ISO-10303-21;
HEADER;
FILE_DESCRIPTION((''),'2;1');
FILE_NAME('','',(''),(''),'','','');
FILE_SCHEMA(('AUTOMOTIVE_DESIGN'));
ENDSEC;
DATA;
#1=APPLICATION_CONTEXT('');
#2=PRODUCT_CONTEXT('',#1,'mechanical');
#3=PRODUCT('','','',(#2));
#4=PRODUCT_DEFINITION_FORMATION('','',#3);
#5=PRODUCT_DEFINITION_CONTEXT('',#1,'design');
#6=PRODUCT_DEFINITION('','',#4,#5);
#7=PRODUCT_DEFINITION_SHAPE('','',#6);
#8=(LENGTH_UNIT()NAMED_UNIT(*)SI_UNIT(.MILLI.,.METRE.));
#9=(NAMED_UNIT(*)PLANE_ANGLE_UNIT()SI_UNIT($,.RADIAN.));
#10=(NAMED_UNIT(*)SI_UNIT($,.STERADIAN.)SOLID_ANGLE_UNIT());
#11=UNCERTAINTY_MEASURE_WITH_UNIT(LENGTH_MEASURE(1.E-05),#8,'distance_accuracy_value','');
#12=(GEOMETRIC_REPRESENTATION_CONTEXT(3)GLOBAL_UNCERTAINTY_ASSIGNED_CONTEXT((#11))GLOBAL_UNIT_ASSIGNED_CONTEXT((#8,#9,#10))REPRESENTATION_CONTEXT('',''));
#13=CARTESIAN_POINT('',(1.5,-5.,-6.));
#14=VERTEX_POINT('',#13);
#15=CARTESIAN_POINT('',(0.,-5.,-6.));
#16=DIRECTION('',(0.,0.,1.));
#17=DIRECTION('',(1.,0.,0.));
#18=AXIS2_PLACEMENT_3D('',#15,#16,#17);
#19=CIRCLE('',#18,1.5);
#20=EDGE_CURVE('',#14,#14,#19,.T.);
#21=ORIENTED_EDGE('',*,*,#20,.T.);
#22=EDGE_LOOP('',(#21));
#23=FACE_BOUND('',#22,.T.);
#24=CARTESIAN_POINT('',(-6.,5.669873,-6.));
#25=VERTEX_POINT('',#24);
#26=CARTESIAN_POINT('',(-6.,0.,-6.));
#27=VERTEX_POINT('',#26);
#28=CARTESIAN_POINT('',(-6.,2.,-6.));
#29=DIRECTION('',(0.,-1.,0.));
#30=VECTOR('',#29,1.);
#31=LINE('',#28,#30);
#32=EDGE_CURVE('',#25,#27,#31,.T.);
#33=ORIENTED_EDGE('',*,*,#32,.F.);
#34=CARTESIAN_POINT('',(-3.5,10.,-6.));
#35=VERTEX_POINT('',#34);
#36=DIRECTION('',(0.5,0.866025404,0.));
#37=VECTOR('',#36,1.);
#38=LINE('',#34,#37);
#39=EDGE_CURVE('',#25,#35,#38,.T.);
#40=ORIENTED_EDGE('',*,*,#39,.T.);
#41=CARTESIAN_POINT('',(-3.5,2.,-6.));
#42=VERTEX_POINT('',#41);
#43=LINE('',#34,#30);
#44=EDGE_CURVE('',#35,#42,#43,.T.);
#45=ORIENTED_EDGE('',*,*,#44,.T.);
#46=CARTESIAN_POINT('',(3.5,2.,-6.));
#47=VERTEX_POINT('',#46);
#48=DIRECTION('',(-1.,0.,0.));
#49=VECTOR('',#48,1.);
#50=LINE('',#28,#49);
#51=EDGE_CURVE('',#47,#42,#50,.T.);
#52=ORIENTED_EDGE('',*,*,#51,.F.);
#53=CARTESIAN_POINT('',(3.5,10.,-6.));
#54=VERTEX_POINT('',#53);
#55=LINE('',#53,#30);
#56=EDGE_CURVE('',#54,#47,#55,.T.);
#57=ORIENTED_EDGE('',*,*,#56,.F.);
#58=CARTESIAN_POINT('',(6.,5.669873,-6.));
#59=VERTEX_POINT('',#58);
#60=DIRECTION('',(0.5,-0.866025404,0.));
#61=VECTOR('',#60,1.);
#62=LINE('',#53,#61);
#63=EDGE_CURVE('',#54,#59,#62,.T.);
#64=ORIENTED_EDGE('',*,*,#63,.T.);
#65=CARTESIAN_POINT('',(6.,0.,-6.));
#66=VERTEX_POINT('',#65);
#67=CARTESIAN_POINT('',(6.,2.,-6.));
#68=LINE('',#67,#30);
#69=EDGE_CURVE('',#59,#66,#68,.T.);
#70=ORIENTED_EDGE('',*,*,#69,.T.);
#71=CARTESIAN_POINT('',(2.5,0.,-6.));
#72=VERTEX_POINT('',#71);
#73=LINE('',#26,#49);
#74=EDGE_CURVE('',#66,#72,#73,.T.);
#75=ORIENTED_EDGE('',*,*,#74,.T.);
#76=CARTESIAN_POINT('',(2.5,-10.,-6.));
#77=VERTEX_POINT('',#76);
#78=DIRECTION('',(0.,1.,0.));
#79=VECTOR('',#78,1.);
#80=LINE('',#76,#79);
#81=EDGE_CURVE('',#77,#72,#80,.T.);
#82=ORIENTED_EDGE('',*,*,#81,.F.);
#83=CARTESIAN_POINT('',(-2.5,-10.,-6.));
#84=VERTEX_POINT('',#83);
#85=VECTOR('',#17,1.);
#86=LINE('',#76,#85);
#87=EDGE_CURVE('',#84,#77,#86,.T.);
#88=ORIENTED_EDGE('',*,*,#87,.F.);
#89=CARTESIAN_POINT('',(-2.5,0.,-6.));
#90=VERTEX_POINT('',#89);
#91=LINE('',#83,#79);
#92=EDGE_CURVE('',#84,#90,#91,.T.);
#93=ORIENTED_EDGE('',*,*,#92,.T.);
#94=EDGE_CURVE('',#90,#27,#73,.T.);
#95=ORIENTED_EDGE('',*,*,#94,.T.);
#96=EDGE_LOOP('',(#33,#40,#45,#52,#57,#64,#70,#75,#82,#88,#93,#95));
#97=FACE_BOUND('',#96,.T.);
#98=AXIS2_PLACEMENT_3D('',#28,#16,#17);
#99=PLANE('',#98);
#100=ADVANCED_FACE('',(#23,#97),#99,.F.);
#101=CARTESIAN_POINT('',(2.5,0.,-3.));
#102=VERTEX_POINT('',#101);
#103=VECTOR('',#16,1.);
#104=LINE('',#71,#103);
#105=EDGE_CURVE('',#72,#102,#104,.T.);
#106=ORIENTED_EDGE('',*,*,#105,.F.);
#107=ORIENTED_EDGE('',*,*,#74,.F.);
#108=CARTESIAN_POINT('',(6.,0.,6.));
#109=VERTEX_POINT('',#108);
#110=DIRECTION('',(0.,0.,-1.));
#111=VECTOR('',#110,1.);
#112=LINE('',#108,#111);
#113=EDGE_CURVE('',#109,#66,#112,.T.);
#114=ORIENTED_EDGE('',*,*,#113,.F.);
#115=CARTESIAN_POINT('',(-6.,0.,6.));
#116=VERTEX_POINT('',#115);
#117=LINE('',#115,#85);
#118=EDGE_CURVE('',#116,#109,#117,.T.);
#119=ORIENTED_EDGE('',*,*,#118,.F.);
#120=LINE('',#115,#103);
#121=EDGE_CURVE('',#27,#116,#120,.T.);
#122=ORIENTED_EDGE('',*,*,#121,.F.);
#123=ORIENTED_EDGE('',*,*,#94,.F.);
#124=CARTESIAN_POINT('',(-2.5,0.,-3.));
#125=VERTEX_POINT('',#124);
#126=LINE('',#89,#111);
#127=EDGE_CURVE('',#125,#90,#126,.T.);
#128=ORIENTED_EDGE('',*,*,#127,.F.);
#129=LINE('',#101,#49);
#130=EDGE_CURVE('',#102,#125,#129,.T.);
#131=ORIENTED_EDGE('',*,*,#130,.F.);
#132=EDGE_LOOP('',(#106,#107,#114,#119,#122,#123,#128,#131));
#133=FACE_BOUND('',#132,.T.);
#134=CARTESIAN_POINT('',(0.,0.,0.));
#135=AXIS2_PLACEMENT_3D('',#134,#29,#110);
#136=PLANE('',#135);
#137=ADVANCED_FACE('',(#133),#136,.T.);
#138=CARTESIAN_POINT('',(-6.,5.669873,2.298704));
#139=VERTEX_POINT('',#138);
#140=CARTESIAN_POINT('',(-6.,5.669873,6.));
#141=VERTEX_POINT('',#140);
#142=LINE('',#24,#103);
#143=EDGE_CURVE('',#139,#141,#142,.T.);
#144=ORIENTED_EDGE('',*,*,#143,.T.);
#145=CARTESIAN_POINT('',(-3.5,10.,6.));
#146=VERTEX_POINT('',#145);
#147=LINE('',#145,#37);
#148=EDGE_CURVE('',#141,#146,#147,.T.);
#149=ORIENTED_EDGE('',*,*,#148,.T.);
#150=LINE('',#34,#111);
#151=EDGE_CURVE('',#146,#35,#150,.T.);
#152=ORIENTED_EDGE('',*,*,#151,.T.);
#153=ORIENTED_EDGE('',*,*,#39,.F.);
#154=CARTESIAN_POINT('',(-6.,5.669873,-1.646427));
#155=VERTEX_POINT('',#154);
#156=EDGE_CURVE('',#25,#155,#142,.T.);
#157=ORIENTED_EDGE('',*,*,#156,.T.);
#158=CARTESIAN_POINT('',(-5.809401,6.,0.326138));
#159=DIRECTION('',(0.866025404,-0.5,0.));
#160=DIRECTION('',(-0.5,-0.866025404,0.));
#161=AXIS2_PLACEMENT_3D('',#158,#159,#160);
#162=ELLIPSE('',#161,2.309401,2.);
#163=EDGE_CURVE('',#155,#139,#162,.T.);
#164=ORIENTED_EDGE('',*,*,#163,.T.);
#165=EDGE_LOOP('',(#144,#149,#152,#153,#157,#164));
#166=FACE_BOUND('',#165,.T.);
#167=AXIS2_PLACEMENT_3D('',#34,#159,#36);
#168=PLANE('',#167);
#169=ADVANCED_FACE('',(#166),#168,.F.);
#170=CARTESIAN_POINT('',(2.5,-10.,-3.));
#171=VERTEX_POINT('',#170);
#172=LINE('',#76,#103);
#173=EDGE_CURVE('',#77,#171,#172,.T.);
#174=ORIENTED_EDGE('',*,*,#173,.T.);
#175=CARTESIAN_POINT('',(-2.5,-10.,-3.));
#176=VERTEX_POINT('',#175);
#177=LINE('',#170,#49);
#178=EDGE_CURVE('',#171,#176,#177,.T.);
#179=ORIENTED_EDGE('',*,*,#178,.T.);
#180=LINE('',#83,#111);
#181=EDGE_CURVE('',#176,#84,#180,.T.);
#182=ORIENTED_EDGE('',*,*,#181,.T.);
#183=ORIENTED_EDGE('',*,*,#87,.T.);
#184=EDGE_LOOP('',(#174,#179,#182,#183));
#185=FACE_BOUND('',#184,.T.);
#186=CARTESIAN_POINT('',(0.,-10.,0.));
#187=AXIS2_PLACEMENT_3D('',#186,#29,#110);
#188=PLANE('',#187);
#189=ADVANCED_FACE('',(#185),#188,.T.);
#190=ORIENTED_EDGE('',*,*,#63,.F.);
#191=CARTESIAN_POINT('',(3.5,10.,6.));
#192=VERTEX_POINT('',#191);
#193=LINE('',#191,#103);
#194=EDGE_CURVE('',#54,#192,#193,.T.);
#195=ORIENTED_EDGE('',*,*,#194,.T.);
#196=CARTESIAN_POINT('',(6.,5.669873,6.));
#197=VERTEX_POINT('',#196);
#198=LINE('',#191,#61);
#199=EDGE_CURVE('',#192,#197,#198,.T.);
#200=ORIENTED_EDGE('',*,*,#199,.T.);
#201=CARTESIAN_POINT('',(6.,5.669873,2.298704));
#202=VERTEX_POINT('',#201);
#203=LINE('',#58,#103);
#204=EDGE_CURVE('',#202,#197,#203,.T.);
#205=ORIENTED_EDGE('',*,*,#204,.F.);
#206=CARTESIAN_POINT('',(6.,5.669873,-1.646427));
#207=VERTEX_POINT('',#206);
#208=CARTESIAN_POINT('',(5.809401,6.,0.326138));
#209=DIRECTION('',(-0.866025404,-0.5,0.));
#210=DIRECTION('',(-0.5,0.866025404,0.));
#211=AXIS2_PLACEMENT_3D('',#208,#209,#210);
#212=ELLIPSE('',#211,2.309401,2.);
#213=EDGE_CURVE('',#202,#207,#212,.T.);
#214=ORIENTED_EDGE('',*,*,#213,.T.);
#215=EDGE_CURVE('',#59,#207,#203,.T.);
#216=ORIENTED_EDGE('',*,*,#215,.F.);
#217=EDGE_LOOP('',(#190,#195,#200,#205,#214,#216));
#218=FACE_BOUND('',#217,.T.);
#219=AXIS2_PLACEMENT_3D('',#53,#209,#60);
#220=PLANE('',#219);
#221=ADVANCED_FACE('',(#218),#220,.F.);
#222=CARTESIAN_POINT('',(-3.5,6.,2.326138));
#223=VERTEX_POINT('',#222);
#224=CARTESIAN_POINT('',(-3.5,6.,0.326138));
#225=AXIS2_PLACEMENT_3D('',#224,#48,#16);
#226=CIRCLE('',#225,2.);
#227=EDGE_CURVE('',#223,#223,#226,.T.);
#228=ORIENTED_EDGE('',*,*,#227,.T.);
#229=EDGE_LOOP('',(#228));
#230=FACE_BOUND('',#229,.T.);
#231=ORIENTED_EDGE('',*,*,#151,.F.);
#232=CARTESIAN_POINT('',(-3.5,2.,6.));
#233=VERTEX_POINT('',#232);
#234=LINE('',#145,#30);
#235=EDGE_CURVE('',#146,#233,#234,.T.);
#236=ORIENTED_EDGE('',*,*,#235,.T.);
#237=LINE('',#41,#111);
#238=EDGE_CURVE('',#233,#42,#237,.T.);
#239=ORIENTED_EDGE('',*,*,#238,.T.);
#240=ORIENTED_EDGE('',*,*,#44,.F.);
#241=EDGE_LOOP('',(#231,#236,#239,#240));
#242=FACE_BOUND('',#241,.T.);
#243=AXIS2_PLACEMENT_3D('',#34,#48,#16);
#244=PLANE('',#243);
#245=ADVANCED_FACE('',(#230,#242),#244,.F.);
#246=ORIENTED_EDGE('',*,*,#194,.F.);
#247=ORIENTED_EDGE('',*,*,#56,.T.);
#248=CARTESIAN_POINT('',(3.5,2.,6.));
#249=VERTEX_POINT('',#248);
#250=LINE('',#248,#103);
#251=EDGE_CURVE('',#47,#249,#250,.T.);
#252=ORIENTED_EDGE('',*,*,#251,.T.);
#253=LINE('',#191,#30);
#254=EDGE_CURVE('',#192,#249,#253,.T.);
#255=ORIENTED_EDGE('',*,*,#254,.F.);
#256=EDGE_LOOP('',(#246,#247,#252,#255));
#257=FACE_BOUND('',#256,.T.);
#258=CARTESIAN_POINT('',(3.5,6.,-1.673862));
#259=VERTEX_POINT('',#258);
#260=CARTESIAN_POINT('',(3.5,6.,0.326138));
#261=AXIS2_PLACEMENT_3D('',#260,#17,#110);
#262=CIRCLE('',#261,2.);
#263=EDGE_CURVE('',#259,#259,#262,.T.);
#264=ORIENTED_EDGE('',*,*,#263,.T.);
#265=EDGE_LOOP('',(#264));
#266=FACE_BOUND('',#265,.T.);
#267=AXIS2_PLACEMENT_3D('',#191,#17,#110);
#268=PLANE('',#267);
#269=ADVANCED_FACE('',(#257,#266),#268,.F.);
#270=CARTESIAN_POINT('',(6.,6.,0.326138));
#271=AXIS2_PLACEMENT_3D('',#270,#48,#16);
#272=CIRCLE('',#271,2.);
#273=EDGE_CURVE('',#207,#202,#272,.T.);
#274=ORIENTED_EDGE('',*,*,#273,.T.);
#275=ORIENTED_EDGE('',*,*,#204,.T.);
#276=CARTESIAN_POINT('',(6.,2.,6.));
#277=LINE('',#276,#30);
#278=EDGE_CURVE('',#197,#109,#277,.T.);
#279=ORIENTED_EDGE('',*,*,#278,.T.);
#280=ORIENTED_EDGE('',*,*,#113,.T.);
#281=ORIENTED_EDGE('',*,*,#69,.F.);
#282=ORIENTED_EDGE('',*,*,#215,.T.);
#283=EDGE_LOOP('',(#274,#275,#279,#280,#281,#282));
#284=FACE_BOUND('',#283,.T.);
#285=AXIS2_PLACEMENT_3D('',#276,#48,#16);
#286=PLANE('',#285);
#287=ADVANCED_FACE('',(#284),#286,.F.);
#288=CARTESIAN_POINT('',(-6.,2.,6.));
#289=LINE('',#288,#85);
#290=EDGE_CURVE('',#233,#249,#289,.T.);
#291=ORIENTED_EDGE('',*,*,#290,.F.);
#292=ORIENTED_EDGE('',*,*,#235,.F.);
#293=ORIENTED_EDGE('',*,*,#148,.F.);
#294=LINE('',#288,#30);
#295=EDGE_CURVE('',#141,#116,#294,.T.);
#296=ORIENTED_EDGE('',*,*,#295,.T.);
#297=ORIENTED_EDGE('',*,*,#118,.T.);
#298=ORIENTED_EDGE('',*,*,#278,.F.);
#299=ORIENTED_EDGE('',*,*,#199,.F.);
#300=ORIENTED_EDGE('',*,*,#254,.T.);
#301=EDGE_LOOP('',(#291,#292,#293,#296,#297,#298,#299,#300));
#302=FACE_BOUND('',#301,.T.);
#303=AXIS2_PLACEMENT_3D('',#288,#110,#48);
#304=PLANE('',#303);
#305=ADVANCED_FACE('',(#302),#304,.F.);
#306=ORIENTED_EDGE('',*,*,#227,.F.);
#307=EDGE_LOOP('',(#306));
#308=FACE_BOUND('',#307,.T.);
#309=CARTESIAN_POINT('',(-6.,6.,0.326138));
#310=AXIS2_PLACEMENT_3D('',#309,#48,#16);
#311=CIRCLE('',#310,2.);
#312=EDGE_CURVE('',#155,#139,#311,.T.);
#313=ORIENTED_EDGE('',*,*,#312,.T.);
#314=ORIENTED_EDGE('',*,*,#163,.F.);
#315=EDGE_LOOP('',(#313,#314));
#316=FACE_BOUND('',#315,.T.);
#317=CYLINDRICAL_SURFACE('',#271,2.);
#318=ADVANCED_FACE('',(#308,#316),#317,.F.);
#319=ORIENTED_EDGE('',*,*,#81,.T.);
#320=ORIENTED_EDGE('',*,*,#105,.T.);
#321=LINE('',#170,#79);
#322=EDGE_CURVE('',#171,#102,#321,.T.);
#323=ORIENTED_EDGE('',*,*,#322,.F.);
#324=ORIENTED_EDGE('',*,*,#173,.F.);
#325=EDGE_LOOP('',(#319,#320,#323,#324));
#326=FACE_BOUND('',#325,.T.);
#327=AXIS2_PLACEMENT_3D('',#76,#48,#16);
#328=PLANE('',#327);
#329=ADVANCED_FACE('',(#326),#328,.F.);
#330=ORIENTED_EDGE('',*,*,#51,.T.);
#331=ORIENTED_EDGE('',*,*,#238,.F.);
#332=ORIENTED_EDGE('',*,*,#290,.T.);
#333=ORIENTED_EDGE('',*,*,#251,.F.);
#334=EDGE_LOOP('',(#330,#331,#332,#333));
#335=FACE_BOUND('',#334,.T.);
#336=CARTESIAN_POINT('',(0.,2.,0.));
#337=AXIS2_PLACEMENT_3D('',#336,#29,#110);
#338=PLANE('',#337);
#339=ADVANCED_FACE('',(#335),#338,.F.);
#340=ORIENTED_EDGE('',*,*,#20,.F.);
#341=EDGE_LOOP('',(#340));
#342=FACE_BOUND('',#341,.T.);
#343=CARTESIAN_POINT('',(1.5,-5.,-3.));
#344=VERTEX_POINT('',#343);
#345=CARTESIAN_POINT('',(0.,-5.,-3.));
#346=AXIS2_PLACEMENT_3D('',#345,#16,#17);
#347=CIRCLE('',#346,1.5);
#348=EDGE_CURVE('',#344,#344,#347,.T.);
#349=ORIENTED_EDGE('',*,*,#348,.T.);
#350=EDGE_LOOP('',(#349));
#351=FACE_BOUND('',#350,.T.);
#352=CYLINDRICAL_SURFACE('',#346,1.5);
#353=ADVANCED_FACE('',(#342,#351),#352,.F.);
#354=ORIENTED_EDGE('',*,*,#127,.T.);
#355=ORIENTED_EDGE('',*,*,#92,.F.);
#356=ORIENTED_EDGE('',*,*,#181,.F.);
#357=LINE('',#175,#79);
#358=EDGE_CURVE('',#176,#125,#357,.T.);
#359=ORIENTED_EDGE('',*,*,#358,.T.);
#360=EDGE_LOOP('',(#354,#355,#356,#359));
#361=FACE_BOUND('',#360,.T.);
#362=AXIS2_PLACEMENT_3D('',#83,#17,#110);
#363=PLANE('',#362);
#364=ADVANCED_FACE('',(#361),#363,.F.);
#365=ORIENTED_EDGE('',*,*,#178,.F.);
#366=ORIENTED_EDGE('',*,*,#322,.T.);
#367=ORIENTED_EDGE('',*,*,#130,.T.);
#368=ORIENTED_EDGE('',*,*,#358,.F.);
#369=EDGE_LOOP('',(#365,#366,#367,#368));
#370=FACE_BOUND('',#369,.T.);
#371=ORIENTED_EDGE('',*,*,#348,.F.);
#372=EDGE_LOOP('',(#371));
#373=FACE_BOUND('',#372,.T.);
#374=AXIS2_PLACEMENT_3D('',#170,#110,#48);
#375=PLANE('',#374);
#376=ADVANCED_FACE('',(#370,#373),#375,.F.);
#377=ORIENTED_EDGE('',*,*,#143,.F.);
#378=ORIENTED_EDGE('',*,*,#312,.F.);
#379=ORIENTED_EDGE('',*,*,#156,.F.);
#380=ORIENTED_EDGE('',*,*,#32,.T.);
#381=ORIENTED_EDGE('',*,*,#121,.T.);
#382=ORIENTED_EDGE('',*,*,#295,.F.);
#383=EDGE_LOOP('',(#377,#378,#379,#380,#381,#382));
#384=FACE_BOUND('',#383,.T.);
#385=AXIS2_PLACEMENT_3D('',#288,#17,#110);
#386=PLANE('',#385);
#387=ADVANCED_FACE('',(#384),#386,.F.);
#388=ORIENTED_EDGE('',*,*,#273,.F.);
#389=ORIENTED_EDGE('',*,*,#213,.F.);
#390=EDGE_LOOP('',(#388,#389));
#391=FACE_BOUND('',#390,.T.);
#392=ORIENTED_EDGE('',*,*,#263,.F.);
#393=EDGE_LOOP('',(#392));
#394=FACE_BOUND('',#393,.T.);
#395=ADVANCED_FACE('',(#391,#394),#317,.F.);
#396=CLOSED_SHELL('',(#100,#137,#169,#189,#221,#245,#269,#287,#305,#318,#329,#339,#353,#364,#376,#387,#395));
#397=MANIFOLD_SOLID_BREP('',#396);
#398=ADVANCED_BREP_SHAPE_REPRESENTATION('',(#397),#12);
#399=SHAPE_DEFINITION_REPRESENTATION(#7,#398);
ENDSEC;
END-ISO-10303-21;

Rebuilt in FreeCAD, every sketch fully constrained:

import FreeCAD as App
import Part
import Sketcher

V = App.Vector
Q = App.Units.Quantity


def add_polygon(sketch, points):
    """Adds a closed chain of lines whose ends are joined by coincident constraints."""
    first, n = sketch.GeometryCount, len(points)
    for a, b in zip(points, points[1:] + points[:1]):
        sketch.addGeometry(Part.LineSegment(App.Vector(*a, 0), App.Vector(*b, 0)), False)
    for i in range(n):
        sketch.addConstraint(Sketcher.Constraint("Coincident", first + i, 2, first + (i + 1) % n, 1))

doc = App.newDocument("Part")
body = doc.addObject("PartDesign::Body", "Body")

# Sketch on XZ plane
sketch1 = body.newObject("Sketcher::SketchObject", "Sketch")
sketch1.AttachmentSupport = (doc.getObject("XZ_Plane"), [""])
sketch1.MapMode = "FlatFace"
add_polygon(sketch1, [(-6, -6), (-6, 6), (6, 6), (6, -6)])  # lines 0-3
sketch1.addConstraint([
    Sketcher.Constraint("Vertical", 0),
    Sketcher.Constraint("Horizontal", 1),
    Sketcher.Constraint("Vertical", 2),
    Sketcher.Constraint("Horizontal", 3),
    Sketcher.Constraint("Symmetric", 0, 2, 2, 2, -1, 1),
    Sketcher.Constraint("Equal", 3, 0),
    Sketcher.Constraint("DistanceX", 1, 1, 1, 2, 12.0),
])
pad1 = body.newObject("PartDesign::Pad", "Pad")
pad1.Profile = sketch1
pad1.Length = 2
pad1.Reversed = True

# Sketch on XZ plane
sketch2 = body.newObject("Sketcher::SketchObject", "Sketch001")
sketch2.AttachmentSupport = (doc.getObject("XZ_Plane"), [""])
sketch2.MapMode = "FlatFace"
sketch2.AttachmentOffset = App.Placement(V(0, 0, -2), App.Rotation())
add_polygon(sketch2, [(-6, -6), (-6, 6), (-3.5, 6), (-3.5, -6)])  # lines 0-3
add_polygon(sketch2, [(3.5, -6), (3.5, 6), (6, 6), (6, -6)])  # lines 4-7
sketch2.addConstraint([
    Sketcher.Constraint("Vertical", 0),
    Sketcher.Constraint("Horizontal", 1),
    Sketcher.Constraint("Vertical", 2),
    Sketcher.Constraint("Horizontal", 3),
    Sketcher.Constraint("Vertical", 4),
    Sketcher.Constraint("Horizontal", 5),
    Sketcher.Constraint("Vertical", 6),
    Sketcher.Constraint("Horizontal", 7),
    Sketcher.Constraint("Symmetric", 2, 2, 4, 2, -1, 1),
    Sketcher.Constraint("Symmetric", 0, 2, 6, 2, -1, 1),
    Sketcher.Constraint("Horizontal", 1, 2, 4, 2),
    Sketcher.Constraint("DistanceY", 0, 1, 0, 2, 12.0),
    Sketcher.Constraint("DistanceX", 1, 1, 1, 2, 2.5),
    Sketcher.Constraint("DistanceX", 0, 2, -1, 1, 6.0),
])
pad2 = body.newObject("PartDesign::Pad", "Pad001")
pad2.Profile = sketch2
pad2.Length = 8
pad2.Reversed = True

# Sketch on XY plane
sketch3 = body.newObject("Sketcher::SketchObject", "Sketch002")
sketch3.AttachmentSupport = (doc.getObject("XY_Plane"), [""])
sketch3.MapMode = "FlatFace"
sketch3.AttachmentOffset = App.Placement(V(0, 0, 6), App.Rotation())
add_polygon(sketch3, [(-6, 5.7), (-3.5, 10), (-6, 10)])  # lines 0-2
add_polygon(sketch3, [(3.5, 10), (6, 5.7), (6, 10)])  # lines 3-5
sketch3.addConstraint([
    Sketcher.Constraint("Horizontal", 1),
    Sketcher.Constraint("Vertical", 2),
    Sketcher.Constraint("Vertical", 4),
    Sketcher.Constraint("Horizontal", 5),
    Sketcher.Constraint("Symmetric", 2, 2, 3, 2, -2),
    Sketcher.Constraint("Symmetric", 0, 2, 5, 2, -2),
    Sketcher.Constraint("Angle", 0, Q("60 deg")),
    Sketcher.Constraint("Distance", 0, 5.0),
    Sketcher.Constraint("DistanceY", -1, 1, 0, 2, 10.0),
    Sketcher.Constraint("DistanceX", 1, 2, -1, 1, 6.0),
])
pocket1 = body.newObject("PartDesign::Pocket", "Pocket")
pocket1.Profile = sketch3
pocket1.Type = "ThroughAll"

# Sketch on YZ plane
sketch4 = body.newObject("Sketcher::SketchObject", "Sketch003")
sketch4.AttachmentSupport = (doc.getObject("YZ_Plane"), [""])
sketch4.MapMode = "FlatFace"
sketch4.AttachmentOffset = App.Placement(V(0, 0, 3.5), App.Rotation())
sketch4.addGeometry(Part.Circle(V(6, 0.3, 0), V(0, 0, 1), 2), False)
sketch4.addConstraint([
    Sketcher.Constraint("Diameter", 0, 4.0),
    Sketcher.Constraint("DistanceX", -1, 1, 0, 3, 6.0),
    Sketcher.Constraint("DistanceY", -1, 1, 0, 3, 0.326138),
])
pocket2 = body.newObject("PartDesign::Pocket", "Pocket001")
pocket2.Profile = sketch4
pocket2.Type = "ThroughAll"
pocket2.Midplane = True

# Sketch on XZ plane
sketch5 = body.newObject("Sketcher::SketchObject", "Sketch004")
sketch5.AttachmentSupport = (doc.getObject("XZ_Plane"), [""])
sketch5.MapMode = "FlatFace"
add_polygon(sketch5, [(-2.5, -3), (-2.5, -6), (2.5, -6), (2.5, -3)])  # lines 0-3
sketch5.addConstraint([
    Sketcher.Constraint("Vertical", 0),
    Sketcher.Constraint("Horizontal", 1),
    Sketcher.Constraint("Vertical", 2),
    Sketcher.Constraint("Horizontal", 3),
    Sketcher.Constraint("DistanceX", 1, 1, 1, 2, 5.0),
    Sketcher.Constraint("DistanceY", 0, 2, 0, 1, 3.0),
    Sketcher.Constraint("DistanceY", 0, 2, -1, 1, 6.0),
    Sketcher.Constraint("DistanceX", 0, 2, -1, 1, 2.5),
])
pad3 = body.newObject("PartDesign::Pad", "Pad002")
pad3.Profile = sketch5
pad3.Length = 10

# Sketch on XY plane
sketch6 = body.newObject("Sketcher::SketchObject", "Sketch005")
sketch6.AttachmentSupport = (doc.getObject("XY_Plane"), [""])
sketch6.MapMode = "FlatFace"
sketch6.AttachmentOffset = App.Placement(V(0, 0, -3), App.Rotation())
sketch6.addGeometry(Part.Circle(V(0, -5, 0), V(0, 0, 1), 1.5), False)
sketch6.addConstraint([
    Sketcher.Constraint("PointOnObject", 0, 3, -2),
    Sketcher.Constraint("Diameter", 0, 3.0),
    Sketcher.Constraint("DistanceY", 0, 3, -1, 1, 5.0),
])
doc.recompute()
hole = body.newObject("PartDesign::Hole", "Hole")
hole.Profile = sketch6
hole.ThreadType = "None"
hole.Diameter = 3
hole.DepthType = "Dimension"
hole.Depth = 3
hole.DrillPoint = "Angled"
hole.DrillPointAngle = 118

doc.recompute()
